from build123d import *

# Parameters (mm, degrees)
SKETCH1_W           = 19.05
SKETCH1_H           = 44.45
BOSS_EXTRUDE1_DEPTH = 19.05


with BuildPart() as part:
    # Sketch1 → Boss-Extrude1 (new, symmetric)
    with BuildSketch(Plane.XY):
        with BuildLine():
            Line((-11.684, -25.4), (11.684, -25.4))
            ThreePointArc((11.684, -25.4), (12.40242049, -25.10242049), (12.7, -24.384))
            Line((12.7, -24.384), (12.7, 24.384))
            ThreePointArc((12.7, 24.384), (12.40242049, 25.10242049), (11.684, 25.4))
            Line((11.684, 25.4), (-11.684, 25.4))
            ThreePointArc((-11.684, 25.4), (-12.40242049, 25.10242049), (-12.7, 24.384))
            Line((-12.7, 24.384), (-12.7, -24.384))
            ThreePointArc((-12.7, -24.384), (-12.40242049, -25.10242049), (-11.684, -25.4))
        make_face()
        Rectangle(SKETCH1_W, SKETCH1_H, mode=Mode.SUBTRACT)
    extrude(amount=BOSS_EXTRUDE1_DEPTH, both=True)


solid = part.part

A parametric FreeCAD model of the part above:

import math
import FreeCAD as App
import Part
import Sketcher
from FreeCAD import Vector
Q = App.Units.Quantity


def add_polygon(sketch, points):
    """Adds a closed chain of lines whose ends are joined by coincident constraints."""
    first, n = sketch.GeometryCount, len(points)
    for a, b in zip(points, points[1:] + points[:1]):
        sketch.addGeometry(Part.LineSegment(App.Vector(*a, 0), App.Vector(*b, 0)), False)
    for i in range(n):
        sketch.addConstraint(Sketcher.Constraint("Coincident", first + i, 2, first + (i + 1) % n, 1))

doc = App.newDocument("Part")
body = doc.addObject("PartDesign::Body", "Body")

sketch1 = body.newObject("Sketcher::SketchObject", "Sketch")
sketch1.AttachmentSupport = (doc.getObject("XY_Plane"), [""])
sketch1.MapMode = "FlatFace"
sketch1.addGeometry(Part.LineSegment(Vector(-11.7, -25.4, 0), Vector(11.7, -25.4, 0)), False)
sketch1.addGeometry(Part.ArcOfCircle(Part.Circle(Vector(11.7, -24.4, 0), Vector(0, 0, 1), 1), math.radians(-90), math.radians(0)), False)
sketch1.addGeometry(Part.LineSegment(Vector(12.7, -24.4, 0), Vector(12.7, 24.4, 0)), False)
sketch1.addGeometry(Part.ArcOfCircle(Part.Circle(Vector(11.7, 24.4, 0), Vector(0, 0, 1), 1), math.radians(0), math.radians(90)), False)
sketch1.addGeometry(Part.LineSegment(Vector(11.7, 25.4, 0), Vector(-11.7, 25.4, 0)), False)
sketch1.addGeometry(Part.ArcOfCircle(Part.Circle(Vector(-11.7, 24.4, 0), Vector(0, 0, 1), 1), math.radians(90), math.radians(180)), False)
sketch1.addGeometry(Part.LineSegment(Vector(-12.7, 24.4, 0), Vector(-12.7, -24.4, 0)), False)
sketch1.addGeometry(Part.ArcOfCircle(Part.Circle(Vector(-11.7, -24.4, 0), Vector(0, 0, 1), 1), math.radians(180), math.radians(270)), False)
add_polygon(sketch1, [(9.5, -22.2), (-9.5, -22.2), (-9.5, 22.2), (9.5, 22.2)])
sketch1.addConstraint([
    Sketcher.Constraint("Tangent", 0, 2, 1, 1),
    Sketcher.Constraint("Tangent", 1, 2, 2, 1),
    Sketcher.Constraint("Tangent", 2, 2, 3, 1),
    Sketcher.Constraint("Tangent", 3, 2, 4, 1),
    Sketcher.Constraint("Tangent", 4, 2, 5, 1),
    Sketcher.Constraint("Tangent", 5, 2, 6, 1),
    Sketcher.Constraint("Tangent", 6, 2, 7, 1),
    Sketcher.Constraint("Tangent", 7, 2, 0, 1),
    Sketcher.Constraint("Horizontal", 0),
    Sketcher.Constraint("Vertical", 2),
    Sketcher.Constraint("Horizontal", 4),
    Sketcher.Constraint("Vertical", 6),
    Sketcher.Constraint("Horizontal", 8),
    Sketcher.Constraint("Vertical", 9),
    Sketcher.Constraint("Horizontal", 10),
    Sketcher.Constraint("Vertical", 11),
    Sketcher.Constraint("Equal", 1, 3),
    Sketcher.Constraint("Equal", 3, 5),
    Sketcher.Constraint("Equal", 5, 7),
    Sketcher.Constraint("Symmetric", 1, 3, 5, 3, -1, 1),
    Sketcher.Constraint("Symmetric", 8, 2, 10, 2, -1, 1),
    Sketcher.Constraint("Radius", 1, Q("0.04 in")),
    Sketcher.Constraint("DistanceY", 0, 2, -1, 1, Q("1 in")),
    Sketcher.Constraint("DistanceX", 5, 2, 2, 2, Q("1 in")),
    Sketcher.Constraint("DistanceX", 8, 2, 8, 1, Q("0.75 in")),
    Sketcher.Constraint("DistanceY", 9, 1, 9, 2, Q("1.75 in")),
])
pad1 = body.newObject("PartDesign::Pad", "Pad")
pad1.Profile = sketch1
pad1.Length = Q("1.5 in")
pad1.Midplane = True

doc.recompute()
